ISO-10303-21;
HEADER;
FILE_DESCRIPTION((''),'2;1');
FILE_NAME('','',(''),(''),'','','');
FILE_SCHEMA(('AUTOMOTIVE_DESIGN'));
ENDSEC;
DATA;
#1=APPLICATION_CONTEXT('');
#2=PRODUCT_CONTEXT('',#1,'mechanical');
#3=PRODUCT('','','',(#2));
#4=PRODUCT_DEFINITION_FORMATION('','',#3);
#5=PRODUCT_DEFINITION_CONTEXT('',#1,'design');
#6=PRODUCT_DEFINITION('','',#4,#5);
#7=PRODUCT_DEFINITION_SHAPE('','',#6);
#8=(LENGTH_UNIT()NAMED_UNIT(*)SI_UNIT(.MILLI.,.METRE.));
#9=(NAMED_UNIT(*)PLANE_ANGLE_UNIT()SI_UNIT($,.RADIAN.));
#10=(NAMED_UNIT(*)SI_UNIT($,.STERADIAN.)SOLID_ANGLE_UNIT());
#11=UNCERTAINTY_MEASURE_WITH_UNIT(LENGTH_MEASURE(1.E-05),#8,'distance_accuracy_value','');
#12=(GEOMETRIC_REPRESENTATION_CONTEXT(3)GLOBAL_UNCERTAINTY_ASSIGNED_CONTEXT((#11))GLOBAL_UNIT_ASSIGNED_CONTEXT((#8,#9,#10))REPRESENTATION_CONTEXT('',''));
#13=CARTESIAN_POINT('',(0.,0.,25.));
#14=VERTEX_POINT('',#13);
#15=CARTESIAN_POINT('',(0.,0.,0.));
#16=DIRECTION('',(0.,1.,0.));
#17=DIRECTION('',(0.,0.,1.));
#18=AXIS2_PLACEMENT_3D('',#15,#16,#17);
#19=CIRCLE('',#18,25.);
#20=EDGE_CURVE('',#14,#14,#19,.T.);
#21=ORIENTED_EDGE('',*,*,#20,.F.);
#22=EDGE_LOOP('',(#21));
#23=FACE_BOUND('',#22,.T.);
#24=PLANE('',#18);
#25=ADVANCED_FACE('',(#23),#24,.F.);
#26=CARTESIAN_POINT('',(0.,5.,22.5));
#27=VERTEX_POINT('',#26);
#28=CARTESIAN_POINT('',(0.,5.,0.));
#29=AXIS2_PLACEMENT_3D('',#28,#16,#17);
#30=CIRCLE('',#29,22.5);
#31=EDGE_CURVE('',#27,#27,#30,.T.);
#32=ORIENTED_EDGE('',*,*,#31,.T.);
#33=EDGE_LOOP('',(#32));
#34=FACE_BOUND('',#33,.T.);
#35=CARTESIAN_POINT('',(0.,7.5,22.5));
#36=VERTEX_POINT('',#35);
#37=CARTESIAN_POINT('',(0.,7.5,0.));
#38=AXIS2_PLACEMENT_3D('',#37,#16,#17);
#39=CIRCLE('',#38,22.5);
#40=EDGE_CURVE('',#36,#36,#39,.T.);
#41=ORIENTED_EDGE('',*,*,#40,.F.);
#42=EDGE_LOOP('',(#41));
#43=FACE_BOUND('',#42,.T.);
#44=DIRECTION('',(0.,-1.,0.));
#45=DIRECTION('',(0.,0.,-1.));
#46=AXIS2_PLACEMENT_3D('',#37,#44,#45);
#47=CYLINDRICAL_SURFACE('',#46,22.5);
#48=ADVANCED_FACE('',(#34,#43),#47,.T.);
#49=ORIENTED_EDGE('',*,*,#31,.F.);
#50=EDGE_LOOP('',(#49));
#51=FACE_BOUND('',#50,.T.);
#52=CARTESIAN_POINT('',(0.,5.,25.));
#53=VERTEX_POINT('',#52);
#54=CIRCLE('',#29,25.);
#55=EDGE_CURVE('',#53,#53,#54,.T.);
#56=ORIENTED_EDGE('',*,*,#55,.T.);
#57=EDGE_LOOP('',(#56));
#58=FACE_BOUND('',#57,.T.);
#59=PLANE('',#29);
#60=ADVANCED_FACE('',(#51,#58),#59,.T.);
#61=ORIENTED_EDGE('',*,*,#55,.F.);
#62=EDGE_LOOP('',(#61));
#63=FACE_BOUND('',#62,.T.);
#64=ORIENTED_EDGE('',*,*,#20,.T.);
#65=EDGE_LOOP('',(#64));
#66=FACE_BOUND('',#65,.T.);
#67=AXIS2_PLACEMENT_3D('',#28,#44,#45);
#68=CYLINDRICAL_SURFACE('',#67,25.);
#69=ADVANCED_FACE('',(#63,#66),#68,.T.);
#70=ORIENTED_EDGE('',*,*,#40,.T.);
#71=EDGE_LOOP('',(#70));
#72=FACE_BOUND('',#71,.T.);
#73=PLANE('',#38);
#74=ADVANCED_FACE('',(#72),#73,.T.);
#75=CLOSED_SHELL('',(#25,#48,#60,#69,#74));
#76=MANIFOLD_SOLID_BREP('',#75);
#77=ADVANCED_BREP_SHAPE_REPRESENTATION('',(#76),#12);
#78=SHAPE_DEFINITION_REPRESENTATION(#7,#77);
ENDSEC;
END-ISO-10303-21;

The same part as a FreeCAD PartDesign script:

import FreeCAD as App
import Part
import Sketcher
Q = App.Units.Quantity

doc = App.newDocument("Part")
body = doc.addObject("PartDesign::Body", "Body")

# Sketch on XZ plane
sketch1 = body.newObject("Sketcher::SketchObject", "Sketch")
sketch1.AttachmentSupport = (doc.getObject("XZ_Plane"), [""])
sketch1.MapMode = "FlatFace"
sketch1.addGeometry(Part.Circle(App.Vector(0, 0, 0), App.Vector(0, 0, 1), 25), False)
sketch1.addConstraint([
    Sketcher.Constraint("Coincident", 0, 3, -1, 1),
    Sketcher.Constraint("Diameter", 0, Q("50 mm")),
])
pad1 = body.newObject("PartDesign::Pad", "Pad")
pad1.Profile = sketch1
pad1.Length = 5
pad1.Reversed = True

# Sketch on XZ plane
sketch2 = body.newObject("Sketcher::SketchObject", "Sketch001")
sketch2.AttachmentSupport = (doc.getObject("XZ_Plane"), [""])
sketch2.MapMode = "FlatFace"
sketch2.AttachmentOffset = App.Placement(App.Vector(0, 0, -5), App.Rotation())
sketch2.addGeometry(Part.Circle(App.Vector(0, 0, 0), App.Vector(0, 0, 1), 22.5), False)
sketch2.addConstraint([
    Sketcher.Constraint("Coincident", 0, 3, -1, 1),
    Sketcher.Constraint("Diameter", 0, Q("45 mm")),
])
pad2 = body.newObject("PartDesign::Pad", "Pad001")
pad2.Profile = sketch2
pad2.Length = 2.5
pad2.Reversed = True

doc.recompute()
